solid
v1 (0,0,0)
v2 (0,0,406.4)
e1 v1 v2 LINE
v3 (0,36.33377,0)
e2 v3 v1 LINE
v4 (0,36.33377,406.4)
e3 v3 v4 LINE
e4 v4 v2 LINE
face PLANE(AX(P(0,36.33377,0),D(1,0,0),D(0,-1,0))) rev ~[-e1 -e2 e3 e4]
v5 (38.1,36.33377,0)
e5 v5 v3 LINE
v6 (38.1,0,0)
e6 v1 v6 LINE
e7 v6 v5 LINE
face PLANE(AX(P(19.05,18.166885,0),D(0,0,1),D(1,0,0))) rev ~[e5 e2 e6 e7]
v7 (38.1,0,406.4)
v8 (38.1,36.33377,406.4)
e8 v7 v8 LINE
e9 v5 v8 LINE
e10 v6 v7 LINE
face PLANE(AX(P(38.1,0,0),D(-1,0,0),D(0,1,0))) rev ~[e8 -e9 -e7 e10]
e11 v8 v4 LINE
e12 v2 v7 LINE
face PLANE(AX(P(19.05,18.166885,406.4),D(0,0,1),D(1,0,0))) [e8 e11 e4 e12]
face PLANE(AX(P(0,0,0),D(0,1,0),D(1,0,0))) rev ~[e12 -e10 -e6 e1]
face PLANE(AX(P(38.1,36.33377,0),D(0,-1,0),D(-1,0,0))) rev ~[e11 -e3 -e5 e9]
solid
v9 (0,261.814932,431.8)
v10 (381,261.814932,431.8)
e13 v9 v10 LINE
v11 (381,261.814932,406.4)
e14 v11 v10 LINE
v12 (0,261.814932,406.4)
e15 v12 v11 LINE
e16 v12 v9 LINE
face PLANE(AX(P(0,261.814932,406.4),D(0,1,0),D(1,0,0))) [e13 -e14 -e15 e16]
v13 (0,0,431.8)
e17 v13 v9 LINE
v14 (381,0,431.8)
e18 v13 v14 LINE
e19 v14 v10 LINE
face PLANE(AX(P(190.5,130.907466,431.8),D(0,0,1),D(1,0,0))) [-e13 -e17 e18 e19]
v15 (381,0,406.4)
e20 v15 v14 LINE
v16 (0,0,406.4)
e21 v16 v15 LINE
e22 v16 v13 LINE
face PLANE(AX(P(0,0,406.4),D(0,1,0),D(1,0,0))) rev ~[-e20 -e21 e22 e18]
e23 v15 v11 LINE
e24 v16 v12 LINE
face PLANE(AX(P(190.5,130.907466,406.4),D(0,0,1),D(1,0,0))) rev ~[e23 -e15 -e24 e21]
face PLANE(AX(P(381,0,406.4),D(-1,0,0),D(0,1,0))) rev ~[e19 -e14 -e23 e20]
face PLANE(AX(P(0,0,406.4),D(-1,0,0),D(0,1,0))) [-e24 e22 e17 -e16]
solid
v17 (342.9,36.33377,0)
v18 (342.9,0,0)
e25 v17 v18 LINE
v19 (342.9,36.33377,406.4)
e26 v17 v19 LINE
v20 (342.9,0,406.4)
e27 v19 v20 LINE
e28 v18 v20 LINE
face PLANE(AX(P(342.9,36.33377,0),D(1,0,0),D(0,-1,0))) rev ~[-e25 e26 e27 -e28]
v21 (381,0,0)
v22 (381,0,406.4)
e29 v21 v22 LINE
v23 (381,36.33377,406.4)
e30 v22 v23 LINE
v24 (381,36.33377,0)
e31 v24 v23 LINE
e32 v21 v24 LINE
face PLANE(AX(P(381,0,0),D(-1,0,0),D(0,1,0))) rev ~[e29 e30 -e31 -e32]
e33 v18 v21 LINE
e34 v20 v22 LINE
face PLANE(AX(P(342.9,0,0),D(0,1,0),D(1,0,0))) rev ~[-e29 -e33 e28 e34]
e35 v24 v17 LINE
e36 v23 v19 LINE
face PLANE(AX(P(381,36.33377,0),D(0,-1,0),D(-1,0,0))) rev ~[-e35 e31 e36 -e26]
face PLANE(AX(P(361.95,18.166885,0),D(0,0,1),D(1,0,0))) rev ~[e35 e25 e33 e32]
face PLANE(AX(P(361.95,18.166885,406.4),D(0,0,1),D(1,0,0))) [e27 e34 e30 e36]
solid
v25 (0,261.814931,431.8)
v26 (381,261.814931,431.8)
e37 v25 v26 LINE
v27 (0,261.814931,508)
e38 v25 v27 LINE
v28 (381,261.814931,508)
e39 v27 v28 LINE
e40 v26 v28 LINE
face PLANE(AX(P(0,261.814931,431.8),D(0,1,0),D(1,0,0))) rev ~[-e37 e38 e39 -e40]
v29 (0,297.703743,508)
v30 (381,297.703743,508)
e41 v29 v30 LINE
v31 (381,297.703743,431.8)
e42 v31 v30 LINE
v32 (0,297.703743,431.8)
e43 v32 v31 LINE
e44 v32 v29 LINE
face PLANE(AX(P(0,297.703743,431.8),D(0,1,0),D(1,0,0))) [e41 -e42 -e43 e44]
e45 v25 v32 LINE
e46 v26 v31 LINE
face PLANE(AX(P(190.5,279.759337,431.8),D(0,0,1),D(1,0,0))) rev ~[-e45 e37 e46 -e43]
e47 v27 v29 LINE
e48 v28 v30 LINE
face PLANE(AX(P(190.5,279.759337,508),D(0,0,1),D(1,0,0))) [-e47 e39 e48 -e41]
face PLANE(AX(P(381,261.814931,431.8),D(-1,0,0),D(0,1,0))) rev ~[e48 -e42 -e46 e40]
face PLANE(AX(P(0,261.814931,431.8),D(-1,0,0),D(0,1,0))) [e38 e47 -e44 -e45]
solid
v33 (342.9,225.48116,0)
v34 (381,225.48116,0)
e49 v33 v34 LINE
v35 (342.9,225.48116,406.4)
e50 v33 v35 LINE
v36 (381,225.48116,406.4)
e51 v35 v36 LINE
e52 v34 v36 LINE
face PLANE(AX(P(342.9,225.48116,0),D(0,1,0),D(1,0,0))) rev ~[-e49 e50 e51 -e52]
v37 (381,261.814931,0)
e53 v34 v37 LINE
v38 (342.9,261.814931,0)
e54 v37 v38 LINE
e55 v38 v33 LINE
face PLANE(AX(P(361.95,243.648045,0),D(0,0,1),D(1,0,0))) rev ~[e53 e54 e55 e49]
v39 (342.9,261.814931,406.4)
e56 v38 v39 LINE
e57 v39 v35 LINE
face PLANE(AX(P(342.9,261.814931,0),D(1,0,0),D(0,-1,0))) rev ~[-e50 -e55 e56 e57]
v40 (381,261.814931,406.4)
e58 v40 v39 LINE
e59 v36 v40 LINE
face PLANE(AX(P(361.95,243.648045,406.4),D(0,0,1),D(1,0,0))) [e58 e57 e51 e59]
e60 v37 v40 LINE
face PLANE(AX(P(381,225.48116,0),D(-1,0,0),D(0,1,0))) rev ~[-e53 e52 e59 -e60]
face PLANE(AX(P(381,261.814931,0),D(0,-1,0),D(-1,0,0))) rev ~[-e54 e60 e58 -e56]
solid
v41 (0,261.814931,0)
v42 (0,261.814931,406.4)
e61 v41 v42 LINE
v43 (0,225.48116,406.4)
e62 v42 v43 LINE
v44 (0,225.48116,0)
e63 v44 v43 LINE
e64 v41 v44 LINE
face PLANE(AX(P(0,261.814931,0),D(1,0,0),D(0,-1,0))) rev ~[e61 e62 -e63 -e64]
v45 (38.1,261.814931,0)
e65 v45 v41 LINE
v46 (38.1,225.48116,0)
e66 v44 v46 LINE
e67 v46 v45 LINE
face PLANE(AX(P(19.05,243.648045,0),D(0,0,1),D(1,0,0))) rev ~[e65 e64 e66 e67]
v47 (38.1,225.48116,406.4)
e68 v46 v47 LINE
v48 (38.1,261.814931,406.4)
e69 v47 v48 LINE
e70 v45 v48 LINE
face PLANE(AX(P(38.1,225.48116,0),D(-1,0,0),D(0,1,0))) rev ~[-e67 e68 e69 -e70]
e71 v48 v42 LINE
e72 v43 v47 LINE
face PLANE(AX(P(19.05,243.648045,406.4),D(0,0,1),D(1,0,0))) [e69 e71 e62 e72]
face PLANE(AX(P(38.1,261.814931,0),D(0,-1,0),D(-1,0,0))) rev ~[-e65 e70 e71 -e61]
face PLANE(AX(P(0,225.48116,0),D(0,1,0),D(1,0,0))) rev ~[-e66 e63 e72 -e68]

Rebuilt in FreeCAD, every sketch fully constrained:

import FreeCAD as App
import Part
import Sketcher
from FreeCAD import Vector
Q = App.Units.Quantity


def add_polygon(sketch, points):
    """Adds a closed chain of lines whose ends are joined by coincident constraints."""
    first, n = sketch.GeometryCount, len(points)
    for a, b in zip(points, points[1:] + points[:1]):
        sketch.addGeometry(Part.LineSegment(App.Vector(*a, 0), App.Vector(*b, 0)), False)
    for i in range(n):
        sketch.addConstraint(Sketcher.Constraint("Coincident", first + i, 2, first + (i + 1) % n, 1))

doc = App.newDocument("Part")
body = doc.addObject("PartDesign::Body", "Body")
body.AllowCompound = True

sketch1 = doc.addObject("Sketcher::SketchObject", "Sketch")
body.addObject(sketch1)
sketch1.AttachmentSupport = (doc.XY_Plane, [""])
sketch1.MapMode = "FlatFace"
add_polygon(sketch1, [(0, 36.33377), (0, 0), (38.1, 0), (38.1, 36.33377)])
add_polygon(sketch1, [(38.1, 225.48116), (38.1, 261.814931), (0, 261.814931), (0, 225.48116)])
add_polygon(sketch1, [(342.9, 261.814931), (342.9, 225.48116), (381, 225.48116), (381, 261.814931)])
add_polygon(sketch1, [(342.9, 0), (381, 0), (381, 36.33377), (342.9, 36.33377)])
sketch1.addConstraint([
    Sketcher.Constraint("Vertical", 0),
    Sketcher.Constraint("Horizontal", 1),
    Sketcher.Constraint("Vertical", 2),
    Sketcher.Constraint("Horizontal", 3),
    Sketcher.Constraint("Vertical", 4),
    Sketcher.Constraint("Horizontal", 5),
    Sketcher.Constraint("Vertical", 6),
    Sketcher.Constraint("Horizontal", 7),
    Sketcher.Constraint("Vertical", 8),
    Sketcher.Constraint("Horizontal", 9),
    Sketcher.Constraint("Vertical", 10),
    Sketcher.Constraint("Horizontal", 11),
    Sketcher.Constraint("Horizontal", 12),
    Sketcher.Constraint("Vertical", 13),
    Sketcher.Constraint("Horizontal", 14),
    Sketcher.Constraint("Vertical", 15),
    Sketcher.Constraint("Coincident", 0, 2, -1, 1),
    Sketcher.Constraint("PointOnObject", 5, 2, -2),
    Sketcher.Constraint("PointOnObject", 12, 2, -1),
    Sketcher.Constraint("Horizontal", 7, 2, 8, 2),
    Sketcher.Constraint("Horizontal", 5, 2, 10, 2),
    Sketcher.Constraint("Horizontal", 3, 2, 13, 2),
    Sketcher.Constraint("Vertical", 2, 2, 4, 2),
    Sketcher.Constraint("Vertical", 10, 2, 12, 2),
    Sketcher.Constraint("Vertical", 11, 2, 14, 2),
    Sketcher.Constraint("Equal", 7, 9),
    Sketcher.Constraint("Equal", 2, 4),
    Sketcher.Constraint("DistanceX", 1, 1, 1, 2, Q("1.5 in")),
    Sketcher.Constraint("DistanceX", -1, 1, 9, 2, Q("15 in")),
    Sketcher.Constraint("DistanceY", 0, 2, 0, 1, 36.33377),
    Sketcher.Constraint("DistanceY", -1, 1, 4, 2, 261.814931),
])
pad1 = doc.addObject("PartDesign::Pad", "Pad")
body.addObject(pad1)
pad1.Profile = sketch1
pad1.Length = Q("16 in")
body2 = doc.addObject("PartDesign::Body", "Body001")

sketch2 = doc.addObject("Sketcher::SketchObject", "Sketch001")
body2.addObject(sketch2)
sketch2.AttachmentSupport = (doc.getObject("XY_Plane001"), [""])
sketch2.MapMode = "FlatFace"
sketch2.AttachmentOffset = App.Placement(Vector(0, 0, 16 * 25.4), App.Rotation())
add_polygon(sketch2, [(0, 261.814932), (0, 0), (381, 0), (381, 261.814932)])
sketch2.addConstraint([
    Sketcher.Constraint("Vertical", 0),
    Sketcher.Constraint("Horizontal", 1),
    Sketcher.Constraint("Vertical", 2),
    Sketcher.Constraint("Horizontal", 3),
    Sketcher.Constraint("Coincident", 0, 2, -1, 1),
    Sketcher.Constraint("DistanceX", 1, 1, 1, 2, Q("15 in")),
    Sketcher.Constraint("DistanceY", 0, 2, 0, 1, 261.814931),
])
pad2 = doc.addObject("PartDesign::Pad", "Pad001")
body2.addObject(pad2)
pad2.Profile = sketch2
pad2.Length = Q("1 in")
body3 = doc.addObject("PartDesign::Body", "Body002")

sketch3 = doc.addObject("Sketcher::SketchObject", "Sketch002")
body3.addObject(sketch3)
sketch3.AttachmentSupport = (doc.getObject("XY_Plane002"), [""])
sketch3.MapMode = "FlatFace"
sketch3.AttachmentOffset = App.Placement(Vector(0, 0, 17 * 25.4), App.Rotation())
add_polygon(sketch3, [(0, 297.703743), (0, 261.814931), (381, 261.814931), (381, 297.703743)])
sketch3.addConstraint([
    Sketcher.Constraint("Vertical", 0),
    Sketcher.Constraint("Horizontal", 1),
    Sketcher.Constraint("Vertical", 2),
    Sketcher.Constraint("Horizontal", 3),
    Sketcher.Constraint("PointOnObject", 0, 2, -2),
    Sketcher.Constraint("DistanceX", 1, 1, 1, 2, Q("15 in")),
    Sketcher.Constraint("DistanceY", 0, 2, 0, 1, 35.888812),
    Sketcher.Constraint("DistanceY", -1, 1, 0, 2, 261.814931),
])
pad3 = doc.addObject("PartDesign::Pad", "Pad002")
body3.addObject(pad3)
pad3.Profile = sketch3
pad3.Length = Q("3 in")

doc.recompute()
